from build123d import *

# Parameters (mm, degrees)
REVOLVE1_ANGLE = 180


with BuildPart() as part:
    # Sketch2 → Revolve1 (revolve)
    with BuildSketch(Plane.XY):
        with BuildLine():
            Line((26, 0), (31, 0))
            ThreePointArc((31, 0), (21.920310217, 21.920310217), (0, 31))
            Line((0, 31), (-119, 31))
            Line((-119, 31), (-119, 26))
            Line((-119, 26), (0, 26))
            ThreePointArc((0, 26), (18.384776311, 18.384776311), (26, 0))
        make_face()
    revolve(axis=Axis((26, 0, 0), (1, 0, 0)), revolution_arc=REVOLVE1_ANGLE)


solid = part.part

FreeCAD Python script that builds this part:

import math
import FreeCAD as App
import Part
import Sketcher

doc = App.newDocument("Part")
body = doc.addObject("PartDesign::Body", "Body")

# Sketch on XY plane
sketch1 = body.newObject("Sketcher::SketchObject", "Sketch")
sketch1.AttachmentSupport = (doc.getObject("XY_Plane"), [""])
sketch1.MapMode = "FlatFace"
sketch1.addGeometry([
    Part.LineSegment(App.Vector(26, 0, 0), App.Vector(31, 0, 0)),  # 0
    Part.ArcOfCircle(Part.Circle(App.Vector(0, 0, 0), App.Vector(0, 0, 1), 31), math.radians(0), math.radians(90)),  # 1
    Part.LineSegment(App.Vector(0, 31, 0), App.Vector(-119, 31, 0)),  # 2
    Part.LineSegment(App.Vector(-119, 31, 0), App.Vector(-119, 26, 0)),  # 3
    Part.LineSegment(App.Vector(-119, 26, 0), App.Vector(0, 26, 0)),  # 4
    Part.ArcOfCircle(Part.Circle(App.Vector(0, 0, 0), App.Vector(0, 0, 1), 26), math.radians(0), math.radians(90)),  # 5
], False)
sketch1.addConstraint([
    Sketcher.Constraint("Coincident", 0, 2, 1, 1),
    Sketcher.Constraint("Tangent", 1, 2, 2, 1),
    Sketcher.Constraint("Coincident", 2, 2, 3, 1),
    Sketcher.Constraint("Coincident", 3, 2, 4, 1),
    Sketcher.Constraint("Tangent", 4, 2, 5, 2),
    Sketcher.Constraint("Coincident", 5, 1, 0, 1),
    Sketcher.Constraint("Horizontal", 0),
    Sketcher.Constraint("Horizontal", 2),
    Sketcher.Constraint("Vertical", 3),
    Sketcher.Constraint("Horizontal", 4),
    Sketcher.Constraint("Coincident", 1, 3, -1, 1),
    Sketcher.Constraint("Coincident", 5, 3, -1, 1),
    Sketcher.Constraint("PointOnObject", 0, 2, -1),
    Sketcher.Constraint("Radius", 1, 31.0),
    Sketcher.Constraint("Radius", 5, 26.0),
    Sketcher.Constraint("DistanceX", 2, 2, 2, 1, 119.0),
])
revolution = body.newObject("PartDesign::Revolution", "Revolution")
revolution.Profile = sketch1
revolution.ReferenceAxis = (sketch1, ["H_Axis"])
revolution.Angle = 180

doc.recompute()
